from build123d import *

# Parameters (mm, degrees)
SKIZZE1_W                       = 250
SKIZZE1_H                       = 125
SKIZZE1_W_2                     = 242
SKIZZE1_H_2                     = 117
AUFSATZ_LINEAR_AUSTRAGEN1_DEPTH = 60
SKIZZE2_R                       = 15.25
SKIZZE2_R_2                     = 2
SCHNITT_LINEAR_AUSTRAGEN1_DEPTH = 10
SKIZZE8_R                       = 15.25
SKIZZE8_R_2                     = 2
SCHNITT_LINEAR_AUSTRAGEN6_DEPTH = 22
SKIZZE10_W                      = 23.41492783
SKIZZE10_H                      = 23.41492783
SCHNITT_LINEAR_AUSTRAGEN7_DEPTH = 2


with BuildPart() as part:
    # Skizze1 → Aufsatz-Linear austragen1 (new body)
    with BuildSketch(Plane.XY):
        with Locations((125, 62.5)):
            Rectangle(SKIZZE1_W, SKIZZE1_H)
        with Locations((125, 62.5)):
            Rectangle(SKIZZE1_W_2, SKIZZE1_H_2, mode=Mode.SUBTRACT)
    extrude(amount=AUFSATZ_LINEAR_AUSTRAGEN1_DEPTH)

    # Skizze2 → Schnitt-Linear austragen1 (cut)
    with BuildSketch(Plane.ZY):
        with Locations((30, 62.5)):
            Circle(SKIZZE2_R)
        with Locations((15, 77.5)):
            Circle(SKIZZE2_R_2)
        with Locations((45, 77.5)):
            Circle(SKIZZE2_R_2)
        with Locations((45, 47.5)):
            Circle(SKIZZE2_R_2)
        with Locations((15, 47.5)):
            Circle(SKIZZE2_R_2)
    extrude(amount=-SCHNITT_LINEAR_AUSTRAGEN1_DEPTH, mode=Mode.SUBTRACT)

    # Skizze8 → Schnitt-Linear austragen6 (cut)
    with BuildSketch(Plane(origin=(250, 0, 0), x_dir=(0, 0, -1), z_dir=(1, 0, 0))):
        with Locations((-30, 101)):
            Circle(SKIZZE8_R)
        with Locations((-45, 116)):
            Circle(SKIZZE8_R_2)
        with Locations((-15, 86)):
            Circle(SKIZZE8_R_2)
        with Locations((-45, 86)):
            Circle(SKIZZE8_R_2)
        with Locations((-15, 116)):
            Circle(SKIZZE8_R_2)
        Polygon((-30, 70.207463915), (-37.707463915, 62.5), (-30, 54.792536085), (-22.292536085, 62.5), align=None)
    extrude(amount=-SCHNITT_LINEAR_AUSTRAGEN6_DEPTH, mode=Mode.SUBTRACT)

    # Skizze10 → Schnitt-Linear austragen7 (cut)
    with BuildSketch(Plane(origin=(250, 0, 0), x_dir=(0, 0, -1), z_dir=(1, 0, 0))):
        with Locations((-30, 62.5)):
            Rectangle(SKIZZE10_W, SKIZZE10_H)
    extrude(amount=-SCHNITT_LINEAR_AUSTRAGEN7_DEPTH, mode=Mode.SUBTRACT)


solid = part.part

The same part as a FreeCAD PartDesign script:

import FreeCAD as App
import Part
import Sketcher

doc = App.newDocument("Part")
body = doc.addObject("PartDesign::Body", "Body")

# Sketch on XY plane
sketch1 = doc.addObject("Sketcher::SketchObject", "Sketch")
body.addObject(sketch1)
sketch1.AttachmentSupport = (doc.XY_Plane, [""])
sketch1.MapMode = "FlatFace"
sketch1.addGeometry([
    Part.LineSegment(App.Vector(0, 125, 0), App.Vector(0, 0, 0)),  # 0
    Part.LineSegment(App.Vector(0, 0, 0), App.Vector(250, 0, 0)),  # 1
    Part.LineSegment(App.Vector(250, 0, 0), App.Vector(250, 125, 0)),  # 2
    Part.LineSegment(App.Vector(250, 125, 0), App.Vector(0, 125, 0)),  # 3
    Part.LineSegment(App.Vector(246, 4, 0), App.Vector(4, 4, 0)),  # 4
    Part.LineSegment(App.Vector(4, 4, 0), App.Vector(4, 121, 0)),  # 5
    Part.LineSegment(App.Vector(4, 121, 0), App.Vector(246, 121, 0)),  # 6
    Part.LineSegment(App.Vector(246, 121, 0), App.Vector(246, 4, 0)),  # 7
], False)
sketch1.addConstraint([
    Sketcher.Constraint("Coincident", 0, 2, 1, 1),
    Sketcher.Constraint("Coincident", 1, 2, 2, 1),
    Sketcher.Constraint("Coincident", 2, 2, 3, 1),
    Sketcher.Constraint("Coincident", 3, 2, 0, 1),
    Sketcher.Constraint("Coincident", 4, 2, 5, 1),
    Sketcher.Constraint("Coincident", 5, 2, 6, 1),
    Sketcher.Constraint("Coincident", 6, 2, 7, 1),
    Sketcher.Constraint("Coincident", 7, 2, 4, 1),
    Sketcher.Constraint("Vertical", 0),
    Sketcher.Constraint("Horizontal", 1),
    Sketcher.Constraint("Vertical", 2),
    Sketcher.Constraint("Horizontal", 3),
    Sketcher.Constraint("Horizontal", 4),
    Sketcher.Constraint("Vertical", 5),
    Sketcher.Constraint("Horizontal", 6),
    Sketcher.Constraint("Vertical", 7),
    Sketcher.Constraint("Coincident", 0, 2, -1, 1),
    Sketcher.Constraint("DistanceX", 1, 1, 1, 2, 250.0),
    Sketcher.Constraint("DistanceX", 4, 2, 4, 1, 242.0),
    Sketcher.Constraint("DistanceY", 0, 2, 0, 1, 125.0),
    Sketcher.Constraint("DistanceY", 5, 1, 5, 2, 117.0),
    Sketcher.Constraint("DistanceX", -1, 1, 4, 2, 4.0),
    Sketcher.Constraint("DistanceY", -1, 1, 4, 2, 4.0),
])
pad1 = doc.addObject("PartDesign::Pad", "Pad")
body.addObject(pad1)
pad1.Profile = sketch1
pad1.Length = 60

# Sketch on YZ plane
sketch2 = doc.addObject("Sketcher::SketchObject", "Sketch001")
body.addObject(sketch2)
sketch2.AttachmentSupport = (doc.YZ_Plane, [""])
sketch2.MapMode = "FlatFace"
sketch2.addGeometry([
    Part.Circle(App.Vector(62.5, 30, 0), App.Vector(0, 0, 1), 15.2),  # 0
    Part.Circle(App.Vector(77.5, 15, 0), App.Vector(0, 0, 1), 2),  # 1
    Part.Circle(App.Vector(77.5, 45, 0), App.Vector(0, 0, 1), 2),  # 2
    Part.Circle(App.Vector(47.5, 45, 0), App.Vector(0, 0, 1), 2),  # 3
    Part.Circle(App.Vector(47.5, 15, 0), App.Vector(0, 0, 1), 2),  # 4
], False)
sketch2.addConstraint([
    Sketcher.Constraint("Equal", 1, 2),
    Sketcher.Constraint("Equal", 2, 3),
    Sketcher.Constraint("Equal", 3, 4),
    Sketcher.Constraint("Horizontal", 2, 3, 3, 3),
    Sketcher.Constraint("Horizontal", 1, 3, 4, 3),
    Sketcher.Constraint("Vertical", 1, 3, 2, 3),
    Sketcher.Constraint("Vertical", 3, 3, 4, 3),
    Sketcher.Constraint("Diameter", 1, 4.0),
    Sketcher.Constraint("Diameter", 0, 30.5),
    Sketcher.Constraint("DistanceY", -1, 1, 0, 3, 30.0),
    Sketcher.Constraint("DistanceY", -1, 1, 1, 3, 15.0),
    Sketcher.Constraint("DistanceY", -1, 1, 2, 3, 45.0),
    Sketcher.Constraint("DistanceX", 0, 3, 1, 3, 15.0),
    Sketcher.Constraint("DistanceX", 3, 3, 0, 3, 15.0),
    Sketcher.Constraint("DistanceX", -1, 1, 0, 3, 62.5),
])
pocket1 = doc.addObject("PartDesign::Pocket", "Pocket")
body.addObject(pocket1)
pocket1.Profile = sketch2
pocket1.Length = 10
pocket1.Reversed = True

# Sketch on YZ plane
sketch3 = doc.addObject("Sketcher::SketchObject", "Sketch002")
body.addObject(sketch3)
sketch3.AttachmentSupport = (doc.YZ_Plane, [""])
sketch3.MapMode = "FlatFace"
sketch3.AttachmentOffset = App.Placement(App.Vector(0, 0, 250), App.Rotation())
sketch3.addGeometry([
    Part.Circle(App.Vector(101, 30, 0), App.Vector(0, 0, 1), 15.2),  # 0
    Part.Circle(App.Vector(116, 45, 0), App.Vector(0, 0, 1), 2),  # 1
    Part.Circle(App.Vector(86, 15, 0), App.Vector(0, 0, 1), 2),  # 2
    Part.Circle(App.Vector(86, 45, 0), App.Vector(0, 0, 1), 2),  # 3
    Part.Circle(App.Vector(116, 15, 0), App.Vector(0, 0, 1), 2),  # 4
    Part.LineSegment(App.Vector(70.2, 30, 0), App.Vector(62.5, 37.7, 0)),  # 5
    Part.LineSegment(App.Vector(62.5, 37.7, 0), App.Vector(54.8, 30, 0)),  # 6
    Part.LineSegment(App.Vector(54.8, 30, 0), App.Vector(62.5, 22.3, 0)),  # 7
    Part.LineSegment(App.Vector(62.5, 22.3, 0), App.Vector(70.2, 30, 0)),  # 8
], False)
sketch3.addConstraint([
    Sketcher.Constraint("Coincident", 5, 2, 6, 1),
    Sketcher.Constraint("Coincident", 6, 2, 7, 1),
    Sketcher.Constraint("Coincident", 7, 2, 8, 1),
    Sketcher.Constraint("Coincident", 8, 2, 5, 1),
    Sketcher.Constraint("Equal", 1, 2),
    Sketcher.Constraint("Equal", 2, 3),
    Sketcher.Constraint("Equal", 3, 4),
    Sketcher.Constraint("Perpendicular", 5, 6),
    Sketcher.Constraint("Perpendicular", 6, 7),
    Sketcher.Constraint("Perpendicular", 7, 8),
    Sketcher.Constraint("Horizontal", 1, 3, 3, 3),
    Sketcher.Constraint("Horizontal", 2, 3, 4, 3),
    Sketcher.Constraint("Horizontal", 0, 3, 6, 2),
    Sketcher.Constraint("Horizontal", 6, 2, 8, 2),
    Sketcher.Constraint("Vertical", 2, 3, 3, 3),
    Sketcher.Constraint("Vertical", 1, 3, 4, 3),
    Sketcher.Constraint("Vertical", 5, 2, 7, 2),
    Sketcher.Constraint("Diameter", 1, 4.0),
    Sketcher.Constraint("Diameter", 0, 30.5),
    Sketcher.Constraint("DistanceX", -1, 1, 0, 3, 101.0),
    Sketcher.Constraint("DistanceY", -1, 1, 0, 3, 30.0),
    Sketcher.Constraint("DistanceX", -1, 1, 1, 3, 116.0),
    Sketcher.Constraint("DistanceY", -1, 1, 1, 3, 45.0),
    Sketcher.Constraint("DistanceX", -1, 1, 2, 3, 86.0),
    Sketcher.Constraint("DistanceY", -1, 1, 2, 3, 15.0),
    Sketcher.Constraint("Distance", 5, 10.9),
    Sketcher.Constraint("DistanceX", -1, 1, 5, 2, 62.5),
])
pocket2 = doc.addObject("PartDesign::Pocket", "Pocket001")
body.addObject(pocket2)
pocket2.Profile = sketch3
pocket2.Length = 22

# Sketch on YZ plane
sketch4 = doc.addObject("Sketcher::SketchObject", "Sketch003")
body.addObject(sketch4)
sketch4.AttachmentSupport = (doc.YZ_Plane, [""])
sketch4.MapMode = "FlatFace"
sketch4.AttachmentOffset = App.Placement(App.Vector(0, 0, 250), App.Rotation())
sketch4.addGeometry([
    Part.LineSegment(App.Vector(74, 42, 0), App.Vector(51, 42, 0)),
    Part.LineSegment(App.Vector(51, 42, 0), App.Vector(51, 18, 0)),
    Part.LineSegment(App.Vector(51, 18, 0), App.Vector(74, 18, 0)),
    Part.LineSegment(App.Vector(74, 18, 0), App.Vector(74, 42, 0)),
], False)
sketch4.addConstraint([
    Sketcher.Constraint("Coincident", 0, 2, 1, 1),
    Sketcher.Constraint("Coincident", 1, 2, 2, 1),
    Sketcher.Constraint("Coincident", 2, 2, 3, 1),
    Sketcher.Constraint("Coincident", 3, 2, 0, 1),
    Sketcher.Constraint("Horizontal", 0),
    Sketcher.Constraint("Vertical", 1),
    Sketcher.Constraint("Horizontal", 2),
    Sketcher.Constraint("Vertical", 3),
    Sketcher.Constraint("Equal", 2, 1),
    Sketcher.Constraint("DistanceX", 0, 2, 0, 1, 23.414928),
    Sketcher.Constraint("DistanceX", -1, 1, 0, 2, 50.792536),
    Sketcher.Constraint("DistanceY", -1, 1, 0, 2, 41.707464),
])
pocket3 = doc.addObject("PartDesign::Pocket", "Pocket002")
body.addObject(pocket3)
pocket3.Profile = sketch4
pocket3.Length = 2

doc.recompute()
